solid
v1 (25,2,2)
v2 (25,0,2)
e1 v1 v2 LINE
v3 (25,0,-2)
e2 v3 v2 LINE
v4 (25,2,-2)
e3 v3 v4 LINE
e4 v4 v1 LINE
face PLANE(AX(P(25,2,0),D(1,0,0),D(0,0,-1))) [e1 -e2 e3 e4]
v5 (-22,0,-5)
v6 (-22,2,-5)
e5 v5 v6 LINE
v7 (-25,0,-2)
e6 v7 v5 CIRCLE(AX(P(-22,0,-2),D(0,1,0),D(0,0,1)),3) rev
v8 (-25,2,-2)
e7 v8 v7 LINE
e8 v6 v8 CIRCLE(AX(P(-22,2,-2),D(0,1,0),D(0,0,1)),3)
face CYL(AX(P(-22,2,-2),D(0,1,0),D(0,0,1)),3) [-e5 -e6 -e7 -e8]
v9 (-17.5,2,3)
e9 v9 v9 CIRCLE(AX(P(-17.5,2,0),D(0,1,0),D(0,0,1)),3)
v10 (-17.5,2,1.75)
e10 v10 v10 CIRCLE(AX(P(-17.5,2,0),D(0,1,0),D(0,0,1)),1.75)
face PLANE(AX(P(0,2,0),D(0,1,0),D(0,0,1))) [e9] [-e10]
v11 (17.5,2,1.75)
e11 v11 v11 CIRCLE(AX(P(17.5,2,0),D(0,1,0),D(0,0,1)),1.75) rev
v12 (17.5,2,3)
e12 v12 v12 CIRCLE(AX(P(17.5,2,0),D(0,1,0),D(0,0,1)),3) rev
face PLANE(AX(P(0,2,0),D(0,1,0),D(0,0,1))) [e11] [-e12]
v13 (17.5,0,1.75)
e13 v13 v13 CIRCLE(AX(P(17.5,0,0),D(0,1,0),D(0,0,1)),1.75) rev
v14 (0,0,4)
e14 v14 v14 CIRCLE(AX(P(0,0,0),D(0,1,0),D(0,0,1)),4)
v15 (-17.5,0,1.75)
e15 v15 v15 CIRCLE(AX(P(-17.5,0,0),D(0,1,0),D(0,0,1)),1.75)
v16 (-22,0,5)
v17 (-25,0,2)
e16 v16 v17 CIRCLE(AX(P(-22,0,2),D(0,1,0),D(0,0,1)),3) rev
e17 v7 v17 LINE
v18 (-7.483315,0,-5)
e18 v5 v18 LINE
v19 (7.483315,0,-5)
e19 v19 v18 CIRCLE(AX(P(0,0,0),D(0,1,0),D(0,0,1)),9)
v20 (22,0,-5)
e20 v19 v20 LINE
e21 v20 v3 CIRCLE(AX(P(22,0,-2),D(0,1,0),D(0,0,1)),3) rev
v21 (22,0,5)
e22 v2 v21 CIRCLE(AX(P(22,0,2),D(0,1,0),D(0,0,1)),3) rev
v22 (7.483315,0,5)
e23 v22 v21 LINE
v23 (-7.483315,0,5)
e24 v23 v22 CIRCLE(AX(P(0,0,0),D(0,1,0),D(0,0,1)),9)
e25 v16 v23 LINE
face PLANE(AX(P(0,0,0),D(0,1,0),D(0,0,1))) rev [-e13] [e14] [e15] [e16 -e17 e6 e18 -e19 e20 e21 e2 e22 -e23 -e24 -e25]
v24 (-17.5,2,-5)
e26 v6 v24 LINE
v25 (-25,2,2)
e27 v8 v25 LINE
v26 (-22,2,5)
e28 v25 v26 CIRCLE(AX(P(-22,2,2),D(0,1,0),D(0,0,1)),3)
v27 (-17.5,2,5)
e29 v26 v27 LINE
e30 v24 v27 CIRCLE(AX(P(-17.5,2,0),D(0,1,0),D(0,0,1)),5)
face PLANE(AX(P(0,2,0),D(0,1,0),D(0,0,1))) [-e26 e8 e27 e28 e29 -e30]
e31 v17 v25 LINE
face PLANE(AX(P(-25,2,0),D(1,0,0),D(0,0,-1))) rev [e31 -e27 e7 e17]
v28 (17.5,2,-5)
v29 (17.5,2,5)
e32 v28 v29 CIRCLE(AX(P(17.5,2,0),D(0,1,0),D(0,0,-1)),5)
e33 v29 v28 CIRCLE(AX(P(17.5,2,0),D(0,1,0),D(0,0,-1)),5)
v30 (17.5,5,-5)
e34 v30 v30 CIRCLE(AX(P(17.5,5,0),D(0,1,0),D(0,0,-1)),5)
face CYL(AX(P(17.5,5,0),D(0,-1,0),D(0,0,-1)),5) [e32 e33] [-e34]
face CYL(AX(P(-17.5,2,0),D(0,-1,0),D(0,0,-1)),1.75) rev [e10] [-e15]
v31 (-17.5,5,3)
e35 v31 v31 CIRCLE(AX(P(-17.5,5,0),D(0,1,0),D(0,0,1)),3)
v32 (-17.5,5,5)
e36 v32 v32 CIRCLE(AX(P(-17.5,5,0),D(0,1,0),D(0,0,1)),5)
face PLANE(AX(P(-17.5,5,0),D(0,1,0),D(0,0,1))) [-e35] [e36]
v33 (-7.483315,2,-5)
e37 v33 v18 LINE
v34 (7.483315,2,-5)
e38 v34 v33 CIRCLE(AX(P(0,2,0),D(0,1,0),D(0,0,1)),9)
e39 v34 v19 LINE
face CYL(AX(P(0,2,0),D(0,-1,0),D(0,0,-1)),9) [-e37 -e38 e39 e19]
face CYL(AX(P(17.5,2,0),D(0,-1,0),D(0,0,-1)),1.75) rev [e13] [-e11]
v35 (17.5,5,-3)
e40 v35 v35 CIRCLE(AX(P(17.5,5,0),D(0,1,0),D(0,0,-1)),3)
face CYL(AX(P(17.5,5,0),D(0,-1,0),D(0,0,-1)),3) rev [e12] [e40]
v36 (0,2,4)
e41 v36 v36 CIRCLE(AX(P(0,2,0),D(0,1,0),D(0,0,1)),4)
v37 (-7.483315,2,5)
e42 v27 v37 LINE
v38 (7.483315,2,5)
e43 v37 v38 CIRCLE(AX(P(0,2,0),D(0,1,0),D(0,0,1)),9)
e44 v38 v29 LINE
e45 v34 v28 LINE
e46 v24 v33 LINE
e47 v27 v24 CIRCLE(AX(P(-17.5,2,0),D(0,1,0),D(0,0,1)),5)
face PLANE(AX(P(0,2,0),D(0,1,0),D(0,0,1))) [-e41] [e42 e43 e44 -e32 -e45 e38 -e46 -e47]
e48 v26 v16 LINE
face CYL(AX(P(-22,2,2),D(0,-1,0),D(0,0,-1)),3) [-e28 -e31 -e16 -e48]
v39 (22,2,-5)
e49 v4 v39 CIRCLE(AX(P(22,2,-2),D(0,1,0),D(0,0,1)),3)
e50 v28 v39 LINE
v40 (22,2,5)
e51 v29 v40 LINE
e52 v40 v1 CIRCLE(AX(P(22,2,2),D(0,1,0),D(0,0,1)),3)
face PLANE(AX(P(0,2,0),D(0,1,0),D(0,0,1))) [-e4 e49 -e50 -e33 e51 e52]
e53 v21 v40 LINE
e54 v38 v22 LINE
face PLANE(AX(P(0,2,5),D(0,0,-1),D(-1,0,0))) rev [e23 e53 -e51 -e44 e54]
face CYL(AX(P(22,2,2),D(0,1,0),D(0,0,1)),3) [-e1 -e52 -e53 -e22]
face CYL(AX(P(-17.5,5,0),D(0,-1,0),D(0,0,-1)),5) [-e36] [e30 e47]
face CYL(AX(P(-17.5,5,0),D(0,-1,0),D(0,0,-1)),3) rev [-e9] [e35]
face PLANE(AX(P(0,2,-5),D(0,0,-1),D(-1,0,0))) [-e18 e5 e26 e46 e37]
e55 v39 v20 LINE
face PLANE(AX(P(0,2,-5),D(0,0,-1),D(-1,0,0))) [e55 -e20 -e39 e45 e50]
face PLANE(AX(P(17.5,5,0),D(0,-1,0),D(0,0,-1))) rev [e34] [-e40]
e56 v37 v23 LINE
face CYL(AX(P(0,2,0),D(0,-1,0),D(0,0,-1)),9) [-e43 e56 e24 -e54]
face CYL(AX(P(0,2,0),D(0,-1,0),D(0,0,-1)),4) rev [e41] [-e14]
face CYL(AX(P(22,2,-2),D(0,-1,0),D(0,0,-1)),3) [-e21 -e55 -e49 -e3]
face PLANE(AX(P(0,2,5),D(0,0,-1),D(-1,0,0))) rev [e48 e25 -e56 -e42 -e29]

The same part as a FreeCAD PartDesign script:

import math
import FreeCAD as App
import Part
import Sketcher

V = App.Vector
Q = App.Units.Quantity


def edges_at(feature, points):
    """Names of the edges that pass closest to the given points."""
    edges = feature.Shape.Edges
    near = lambda p: min(range(len(edges)), key=lambda i: edges[i].distToShape(Part.Vertex(*p))[0])
    return sorted({f"Edge{near(p) + 1}" for p in points})

doc = App.newDocument("Part")
body = doc.addObject("PartDesign::Body", "Body")

# Sketch on XZ plane
sketch1 = body.newObject("Sketcher::SketchObject", "Sketch")
sketch1.AttachmentSupport = (doc.getObject("XZ_Plane"), [""])
sketch1.MapMode = "FlatFace"
sketch1.addGeometry(Part.LineSegment(V(-7.483315, -5, 0), V(-25, -5, 0)), False)
sketch1.addGeometry(Part.LineSegment(V(-25, -5, 0), V(-25, 5, 0)), False)
sketch1.addGeometry(Part.LineSegment(V(-25, 5, 0), V(-7.483315, 5, 0)), False)
sketch1.addGeometry(Part.ArcOfCircle(Part.Circle(V(0, 0, 0), V(0, 0, 1), 9), math.radians(33.748989), math.radians(146.251011)), False)
sketch1.addGeometry(Part.LineSegment(V(7.483315, 5, 0), V(25, 5, 0)), False)
sketch1.addGeometry(Part.LineSegment(V(25, 5, 0), V(25, -5, 0)), False)
sketch1.addGeometry(Part.LineSegment(V(25, -5, 0), V(7.483315, -5, 0)), False)
sketch1.addGeometry(Part.ArcOfCircle(Part.Circle(V(0, 0, 0), V(0, 0, 1), 9), math.radians(-146.251011), math.radians(-33.748989)), False)
sketch1.addGeometry(Part.Circle(V(-17.5, 0, 0), V(0, 0, 1), 1.75), False)
sketch1.addGeometry(Part.Circle(V(0, 0, 0), V(0, 0, 1), 4), False)
sketch1.addGeometry(Part.Circle(V(17.5, 0, 0), V(0, 0, 1), 1.75), False)
sketch1.addConstraint(Sketcher.Constraint("Coincident", 0, 2, 1, 1))
sketch1.addConstraint(Sketcher.Constraint("Coincident", 1, 2, 2, 1))
sketch1.addConstraint(Sketcher.Constraint("Coincident", 2, 2, 3, 2))
sketch1.addConstraint(Sketcher.Constraint("Coincident", 3, 1, 4, 1))
sketch1.addConstraint(Sketcher.Constraint("Coincident", 4, 2, 5, 1))
sketch1.addConstraint(Sketcher.Constraint("Coincident", 5, 2, 6, 1))
sketch1.addConstraint(Sketcher.Constraint("Coincident", 6, 2, 7, 2))
sketch1.addConstraint(Sketcher.Constraint("Coincident", 7, 1, 0, 1))
sketch1.addConstraint(Sketcher.Constraint("Horizontal", 0))
sketch1.addConstraint(Sketcher.Constraint("Vertical", 1))
sketch1.addConstraint(Sketcher.Constraint("Horizontal", 2))
sketch1.addConstraint(Sketcher.Constraint("Horizontal", 4))
sketch1.addConstraint(Sketcher.Constraint("Vertical", 5))
sketch1.addConstraint(Sketcher.Constraint("Horizontal", 6))
sketch1.addConstraint(Sketcher.Constraint("Coincident", 3, 3, -1, 1))
sketch1.addConstraint(Sketcher.Constraint("Coincident", 7, 3, -1, 1))
sketch1.addConstraint(Sketcher.Constraint("Coincident", 9, 3, -1, 1))
sketch1.addConstraint(Sketcher.Constraint("Equal", 3, 7))
sketch1.addConstraint(Sketcher.Constraint("Equal", 8, 10))
sketch1.addConstraint(Sketcher.Constraint("Symmetric", 8, 3, 10, 3, -1, 1))
sketch1.addConstraint(Sketcher.Constraint("Symmetric", 0, 2, 4, 2, -1, 1))
sketch1.addConstraint(Sketcher.Constraint("PointOnObject", 8, 3, -1))
sketch1.addConstraint(Sketcher.Constraint("Horizontal", 2, 2, 3, 1))
sketch1.addConstraint(Sketcher.Constraint("Horizontal", 0, 2, 5, 2))
sketch1.addConstraint(Sketcher.Constraint("Diameter", 9, Q("8 mm")))
sketch1.addConstraint(Sketcher.Constraint("Radius", 3, Q("9 mm")))
sketch1.addConstraint(Sketcher.Constraint("Diameter", 8, Q("3.5 mm")))
sketch1.addConstraint(Sketcher.Constraint("DistanceY", 1, 1, 1, 2, Q("10 mm")))
sketch1.addConstraint(Sketcher.Constraint("DistanceX", 0, 2, -1, 1, Q("25 mm")))
sketch1.addConstraint(Sketcher.Constraint("DistanceX", 8, 3, 10, 3, Q("35 mm")))
pad1 = body.newObject("PartDesign::Pad", "Pad")
pad1.Profile = sketch1
pad1.Length = 2
pad1.Reversed = True
doc.recompute()

fillet = body.newObject("PartDesign::Fillet", "Fillet")
fillet.Base = (pad1, edges_at(pad1, [
    (-25, 1, 5),
    (-25, 1, -5),
    (25, 1, -5),
    (25, 1, 5),
]))
fillet.Radius = 3

# Sketch on XZ plane
sketch2 = body.newObject("Sketcher::SketchObject", "Sketch001")
sketch2.AttachmentSupport = (doc.getObject("XZ_Plane"), [""])
sketch2.MapMode = "FlatFace"
sketch2.AttachmentOffset = App.Placement(V(0, 0, -2), App.Rotation())
sketch2.addGeometry(Part.Circle(V(-17.5, 0, 0), V(0, 0, 1), 5), False)
sketch2.addGeometry(Part.Circle(V(-17.5, 0, 0), V(0, 0, 1), 3), False)
sketch2.addGeometry(Part.Circle(V(17.5, 0, 0), V(0, 0, 1), 5), False)
sketch2.addGeometry(Part.Circle(V(17.5, 0, 0), V(0, 0, 1), 3), False)
sketch2.addConstraint(Sketcher.Constraint("Coincident", 1, 3, 0, 3))
sketch2.addConstraint(Sketcher.Constraint("Coincident", 3, 3, 2, 3))
sketch2.addConstraint(Sketcher.Constraint("Equal", 0, 2))
sketch2.addConstraint(Sketcher.Constraint("Equal", 1, 3))
sketch2.addConstraint(Sketcher.Constraint("Symmetric", 0, 3, 2, 3, -1, 1))
sketch2.addConstraint(Sketcher.Constraint("PointOnObject", 0, 3, -1))
sketch2.addConstraint(Sketcher.Constraint("Diameter", 0, Q("10 mm")))
sketch2.addConstraint(Sketcher.Constraint("Diameter", 1, Q("6 mm")))
sketch2.addConstraint(Sketcher.Constraint("DistanceX", 0, 3, 2, 3, Q("35 mm")))
pad2 = body.newObject("PartDesign::Pad", "Pad001")
pad2.Profile = sketch2
pad2.Length = 3
pad2.Reversed = True

doc.recompute()
